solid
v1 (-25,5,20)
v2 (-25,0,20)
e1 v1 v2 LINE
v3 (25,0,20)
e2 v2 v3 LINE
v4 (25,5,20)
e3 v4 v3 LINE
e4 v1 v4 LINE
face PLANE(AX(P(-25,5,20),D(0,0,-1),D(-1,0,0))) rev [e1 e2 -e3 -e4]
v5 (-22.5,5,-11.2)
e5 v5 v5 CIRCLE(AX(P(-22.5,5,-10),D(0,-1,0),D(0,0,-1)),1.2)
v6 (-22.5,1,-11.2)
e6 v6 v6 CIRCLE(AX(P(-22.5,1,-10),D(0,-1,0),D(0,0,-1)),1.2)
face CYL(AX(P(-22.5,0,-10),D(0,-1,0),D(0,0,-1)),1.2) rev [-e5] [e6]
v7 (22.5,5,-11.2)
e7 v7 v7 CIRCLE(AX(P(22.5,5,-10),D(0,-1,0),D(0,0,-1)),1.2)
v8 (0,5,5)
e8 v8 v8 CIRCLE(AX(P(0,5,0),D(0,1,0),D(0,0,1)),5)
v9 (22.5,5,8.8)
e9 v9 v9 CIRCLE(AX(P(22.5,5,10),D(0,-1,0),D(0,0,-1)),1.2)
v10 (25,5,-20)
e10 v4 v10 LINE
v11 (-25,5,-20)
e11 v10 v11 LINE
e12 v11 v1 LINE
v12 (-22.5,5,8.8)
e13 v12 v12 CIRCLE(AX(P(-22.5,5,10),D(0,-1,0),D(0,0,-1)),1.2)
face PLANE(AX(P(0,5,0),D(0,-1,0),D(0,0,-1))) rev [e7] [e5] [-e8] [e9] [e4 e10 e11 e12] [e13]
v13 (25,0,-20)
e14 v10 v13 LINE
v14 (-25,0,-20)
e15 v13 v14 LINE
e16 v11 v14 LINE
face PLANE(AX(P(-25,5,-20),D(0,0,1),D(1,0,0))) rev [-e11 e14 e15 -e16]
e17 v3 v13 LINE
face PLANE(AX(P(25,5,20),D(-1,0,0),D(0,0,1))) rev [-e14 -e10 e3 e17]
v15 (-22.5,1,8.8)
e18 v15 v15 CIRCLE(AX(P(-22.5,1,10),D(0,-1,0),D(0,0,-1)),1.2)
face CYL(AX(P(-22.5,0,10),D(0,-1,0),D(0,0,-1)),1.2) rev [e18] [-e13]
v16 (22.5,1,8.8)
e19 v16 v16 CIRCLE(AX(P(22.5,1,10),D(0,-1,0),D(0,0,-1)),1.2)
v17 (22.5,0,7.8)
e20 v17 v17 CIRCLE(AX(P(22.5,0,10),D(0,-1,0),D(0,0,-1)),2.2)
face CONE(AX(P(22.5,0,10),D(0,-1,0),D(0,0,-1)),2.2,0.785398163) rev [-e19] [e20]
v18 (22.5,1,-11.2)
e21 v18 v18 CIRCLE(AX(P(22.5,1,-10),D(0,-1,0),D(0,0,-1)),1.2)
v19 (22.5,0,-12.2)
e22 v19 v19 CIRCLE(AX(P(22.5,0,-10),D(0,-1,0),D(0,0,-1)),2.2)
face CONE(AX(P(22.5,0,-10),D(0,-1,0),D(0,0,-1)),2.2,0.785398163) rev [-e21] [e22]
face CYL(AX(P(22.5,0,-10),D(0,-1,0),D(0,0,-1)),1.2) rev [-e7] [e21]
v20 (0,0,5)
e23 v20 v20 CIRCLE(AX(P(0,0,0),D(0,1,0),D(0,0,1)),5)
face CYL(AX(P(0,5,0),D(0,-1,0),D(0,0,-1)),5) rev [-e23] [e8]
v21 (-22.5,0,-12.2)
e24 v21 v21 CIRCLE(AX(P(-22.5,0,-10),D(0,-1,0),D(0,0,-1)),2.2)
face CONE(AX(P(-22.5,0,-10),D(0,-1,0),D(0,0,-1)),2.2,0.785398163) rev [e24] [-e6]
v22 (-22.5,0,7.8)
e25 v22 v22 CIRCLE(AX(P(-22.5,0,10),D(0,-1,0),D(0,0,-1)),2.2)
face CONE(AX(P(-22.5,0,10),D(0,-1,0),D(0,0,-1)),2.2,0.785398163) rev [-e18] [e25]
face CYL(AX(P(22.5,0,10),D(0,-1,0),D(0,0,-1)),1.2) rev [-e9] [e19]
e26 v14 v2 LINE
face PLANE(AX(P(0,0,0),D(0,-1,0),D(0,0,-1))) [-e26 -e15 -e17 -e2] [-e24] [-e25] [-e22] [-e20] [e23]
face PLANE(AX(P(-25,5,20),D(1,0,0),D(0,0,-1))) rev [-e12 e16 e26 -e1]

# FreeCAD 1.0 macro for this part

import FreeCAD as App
import Part
import Sketcher

V = App.Vector


def add_polygon(sketch, points):
    """Adds a closed chain of lines whose ends are joined by coincident constraints."""
    first, n = sketch.GeometryCount, len(points)
    for a, b in zip(points, points[1:] + points[:1]):
        sketch.addGeometry(Part.LineSegment(App.Vector(*a, 0), App.Vector(*b, 0)), False)
    for i in range(n):
        sketch.addConstraint(Sketcher.Constraint("Coincident", first + i, 2, first + (i + 1) % n, 1))

doc = App.newDocument("Part")
params = doc.addObject("Spreadsheet::Sheet", "Params")
for row, (alias, value) in enumerate([
    ("sketch1_diameter", "10 mm"),
    ("sketch1_width", "50 mm"),
    ("sketch1_height", "40 mm"),
    ("pad1_length", "5 mm"),
    ("sketch2_diameter", "2.4 mm"),
    ("hole_diameter", "2.4 mm"),
    ("hole_csink_diameter", "4.4 mm"),
], start=1):
    params.set(f"A{row}", alias)
    params.set(f"B{row}", "=" + value)
    params.setAlias(f"B{row}", alias)

body = doc.addObject("PartDesign::Body", "Body")

# Sketch on XZ plane
sketch1 = body.newObject("Sketcher::SketchObject", "Sketch")
sketch1.AttachmentSupport = (doc.getObject("XZ_Plane"), [""])
sketch1.MapMode = "FlatFace"
add_polygon(sketch1, [(-25, -20), (-25, 20), (25, 20), (25, -20)])  # lines 0-3
sketch1.addGeometry(Part.Circle(V(0, 0, 0), V(0, 0, 1), 5), False)  # 4
sketch1.addConstraint([
    Sketcher.Constraint("Vertical", 0),
    Sketcher.Constraint("Horizontal", 1),
    Sketcher.Constraint("Vertical", 2),
    Sketcher.Constraint("Horizontal", 3),
    Sketcher.Constraint("Coincident", 4, 3, -1, 1),
    Sketcher.Constraint("Symmetric", 0, 2, 2, 2, -1, 1),
    Sketcher.Constraint("Diameter", 4, 10.0),
    Sketcher.Constraint("DistanceX", 1, 1, 1, 2, 50.0),
    Sketcher.Constraint("DistanceY", 0, 1, 0, 2, 40.0),
])
sketch1.setExpression("Constraints[10]", "Params.sketch1_diameter")
sketch1.setExpression("Constraints[11]", "Params.sketch1_width")
sketch1.setExpression("Constraints[12]", "Params.sketch1_height")
pad1 = body.newObject("PartDesign::Pad", "Pad")
pad1.Profile = sketch1
pad1.setExpression("Length", "Params.pad1_length")
pad1.Reversed = True

# Sketch on XZ plane
sketch2 = body.newObject("Sketcher::SketchObject", "Sketch001")
sketch2.AttachmentSupport = (doc.getObject("XZ_Plane"), [""])
sketch2.MapMode = "FlatFace"
sketch2.addGeometry([
    Part.Circle(V(-22.5, 10, 0), V(0, 0, 1), 1.2),
    Part.Circle(V(-22.5, -10, 0), V(0, 0, 1), 1.2),
    Part.Circle(V(22.5, -10, 0), V(0, 0, 1), 1.2),
    Part.Circle(V(22.5, 10, 0), V(0, 0, 1), 1.2),
], False)
sketch2.addConstraint([
    Sketcher.Constraint("Equal", 0, 1),
    Sketcher.Constraint("Equal", 1, 2),
    Sketcher.Constraint("Equal", 2, 3),
    Sketcher.Constraint("Symmetric", 0, 3, 2, 3, -1, 1),
    Sketcher.Constraint("Symmetric", 1, 3, 3, 3, -1, 1),
    Sketcher.Constraint("Symmetric", 1, 3, 2, 3, -2),
    Sketcher.Constraint("Diameter", 0, 2.4),
    Sketcher.Constraint("DistanceY", -1, 1, 0, 3, 10.0),
    Sketcher.Constraint("DistanceX", 1, 3, 2, 3, 45.0),
])
sketch2.setExpression("Constraints[6]", "Params.sketch2_diameter")
doc.recompute()
hole = body.newObject("PartDesign::Hole", "Hole")
hole.Profile = sketch2
hole.ThreadType = "None"
hole.setExpression("Diameter", "Params.hole_diameter")
hole.DepthType = "ThroughAll"
hole.HoleCutType = "Countersink"
hole.setExpression("HoleCutDiameter", "Params.hole_csink_diameter")
hole.HoleCutCountersinkAngle = 90

doc.recompute()
